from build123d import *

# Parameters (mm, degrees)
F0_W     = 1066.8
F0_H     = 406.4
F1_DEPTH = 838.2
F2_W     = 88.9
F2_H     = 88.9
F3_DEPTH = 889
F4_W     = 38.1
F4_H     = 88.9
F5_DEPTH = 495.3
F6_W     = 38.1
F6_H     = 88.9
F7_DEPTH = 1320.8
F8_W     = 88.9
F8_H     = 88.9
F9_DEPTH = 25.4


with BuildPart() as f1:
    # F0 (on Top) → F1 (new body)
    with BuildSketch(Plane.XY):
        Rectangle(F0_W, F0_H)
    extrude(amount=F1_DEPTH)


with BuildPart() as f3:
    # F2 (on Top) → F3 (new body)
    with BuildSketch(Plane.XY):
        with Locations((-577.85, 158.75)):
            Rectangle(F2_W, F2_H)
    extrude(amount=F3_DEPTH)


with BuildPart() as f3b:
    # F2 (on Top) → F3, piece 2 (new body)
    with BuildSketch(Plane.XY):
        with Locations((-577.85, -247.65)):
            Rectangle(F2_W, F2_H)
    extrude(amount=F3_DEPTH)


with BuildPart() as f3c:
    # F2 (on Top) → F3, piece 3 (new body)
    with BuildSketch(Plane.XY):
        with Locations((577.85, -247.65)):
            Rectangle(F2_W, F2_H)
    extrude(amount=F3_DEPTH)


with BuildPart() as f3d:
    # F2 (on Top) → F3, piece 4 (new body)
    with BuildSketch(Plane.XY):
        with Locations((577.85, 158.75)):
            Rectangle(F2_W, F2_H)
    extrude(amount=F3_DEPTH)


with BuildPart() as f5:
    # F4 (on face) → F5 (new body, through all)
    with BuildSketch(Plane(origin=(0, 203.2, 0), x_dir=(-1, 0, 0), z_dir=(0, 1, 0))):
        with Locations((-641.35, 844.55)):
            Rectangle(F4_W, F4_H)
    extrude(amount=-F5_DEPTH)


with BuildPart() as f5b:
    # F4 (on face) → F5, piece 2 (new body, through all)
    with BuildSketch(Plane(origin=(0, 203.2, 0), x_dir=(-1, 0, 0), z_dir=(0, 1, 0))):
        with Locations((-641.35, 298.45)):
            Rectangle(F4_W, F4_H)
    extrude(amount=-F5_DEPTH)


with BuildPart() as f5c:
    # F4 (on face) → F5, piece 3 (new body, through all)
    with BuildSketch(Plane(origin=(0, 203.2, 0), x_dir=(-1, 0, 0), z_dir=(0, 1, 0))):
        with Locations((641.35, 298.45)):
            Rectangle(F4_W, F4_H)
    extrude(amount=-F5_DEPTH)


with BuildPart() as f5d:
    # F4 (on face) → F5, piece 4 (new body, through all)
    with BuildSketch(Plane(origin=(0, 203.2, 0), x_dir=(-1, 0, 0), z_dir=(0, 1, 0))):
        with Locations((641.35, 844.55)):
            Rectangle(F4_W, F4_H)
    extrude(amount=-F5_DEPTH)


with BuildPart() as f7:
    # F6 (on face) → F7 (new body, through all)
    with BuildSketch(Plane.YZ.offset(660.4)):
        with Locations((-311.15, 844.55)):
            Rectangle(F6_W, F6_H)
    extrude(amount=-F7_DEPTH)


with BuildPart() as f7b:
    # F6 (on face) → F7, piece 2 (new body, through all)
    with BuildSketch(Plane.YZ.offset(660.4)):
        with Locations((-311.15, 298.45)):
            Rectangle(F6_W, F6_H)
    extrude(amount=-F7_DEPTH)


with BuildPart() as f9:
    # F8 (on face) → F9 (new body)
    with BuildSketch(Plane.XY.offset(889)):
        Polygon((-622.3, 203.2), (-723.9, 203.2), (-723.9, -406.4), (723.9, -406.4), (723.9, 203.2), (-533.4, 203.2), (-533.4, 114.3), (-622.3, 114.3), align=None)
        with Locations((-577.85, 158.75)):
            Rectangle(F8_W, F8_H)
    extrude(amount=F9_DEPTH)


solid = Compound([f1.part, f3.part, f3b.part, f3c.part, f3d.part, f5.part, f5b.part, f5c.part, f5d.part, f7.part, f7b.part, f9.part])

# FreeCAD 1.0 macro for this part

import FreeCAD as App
import Part
import Sketcher
Q = App.Units.Quantity


def add_polygon(sketch, points):
    """Adds a closed chain of lines whose ends are joined by coincident constraints."""
    first, n = sketch.GeometryCount, len(points)
    for a, b in zip(points, points[1:] + points[:1]):
        sketch.addGeometry(Part.LineSegment(App.Vector(*a, 0), App.Vector(*b, 0)), False)
    for i in range(n):
        sketch.addConstraint(Sketcher.Constraint("Coincident", first + i, 2, first + (i + 1) % n, 1))

doc = App.newDocument("Part")
body = doc.addObject("PartDesign::Body", "Body")

# Sketch on XY plane
sketch1 = body.newObject("Sketcher::SketchObject", "Sketch")
sketch1.AttachmentSupport = (doc.getObject("XY_Plane"), [""])
sketch1.MapMode = "FlatFace"
add_polygon(sketch1, [(-533, 203), (-533, -203), (533, -203), (533, 203)])  # lines 0-3
sketch1.addConstraint([
    Sketcher.Constraint("Vertical", 0),
    Sketcher.Constraint("Horizontal", 1),
    Sketcher.Constraint("Vertical", 2),
    Sketcher.Constraint("Horizontal", 3),
    Sketcher.Constraint("Symmetric", 0, 2, 2, 2, -1, 1),
    Sketcher.Constraint("DistanceX", 1, 1, 1, 2, Q("42 in")),
    Sketcher.Constraint("DistanceY", 0, 2, 0, 1, Q("16 in")),
])
pad1 = body.newObject("PartDesign::Pad", "Pad")
pad1.Profile = sketch1
pad1.Length = Q("33 in")
body2 = doc.addObject("PartDesign::Body", "Body001")

# Sketch on XY plane
sketch2 = body2.newObject("Sketcher::SketchObject", "Sketch001")
sketch2.AttachmentSupport = (doc.getObject("XY_Plane001"), [""])
sketch2.MapMode = "FlatFace"
add_polygon(sketch2, [(-622, 203), (-622, 114), (-533, 114), (-533, 203)])  # lines 0-3
sketch2.addConstraint([
    Sketcher.Constraint("Vertical", 0),
    Sketcher.Constraint("Horizontal", 1),
    Sketcher.Constraint("Vertical", 2),
    Sketcher.Constraint("Horizontal", 3),
    Sketcher.Constraint("Equal", 3, 0),
    Sketcher.Constraint("DistanceX", 1, 1, 1, 2, Q("3.5 in")),
    Sketcher.Constraint("DistanceX", 1, 2, -1, 1, Q("21 in")),
    Sketcher.Constraint("DistanceY", -1, 1, 2, 2, Q("8 in")),
])
pad2 = body2.newObject("PartDesign::Pad", "Pad001")
pad2.Profile = sketch2
pad2.Length = Q("35 in")
body3 = doc.addObject("PartDesign::Body", "Body002")

# Sketch on XY plane
sketch3 = body3.newObject("Sketcher::SketchObject", "Sketch002")
sketch3.AttachmentSupport = (doc.getObject("XY_Plane002"), [""])
sketch3.MapMode = "FlatFace"
add_polygon(sketch3, [(-622, -203), (-622, -292), (-533, -292), (-533, -203)])  # lines 0-3
sketch3.addConstraint([
    Sketcher.Constraint("Vertical", 0),
    Sketcher.Constraint("Horizontal", 1),
    Sketcher.Constraint("Vertical", 2),
    Sketcher.Constraint("Horizontal", 3),
    Sketcher.Constraint("Equal", 3, 0),
    Sketcher.Constraint("DistanceX", 1, 1, 1, 2, Q("3.5 in")),
    Sketcher.Constraint("DistanceX", 1, 2, -1, 1, Q("21 in")),
    Sketcher.Constraint("DistanceY", 2, 2, -1, 1, Q("8 in")),
])
pad3 = body3.newObject("PartDesign::Pad", "Pad002")
pad3.Profile = sketch3
pad3.Length = Q("35 in")
body4 = doc.addObject("PartDesign::Body", "Body003")

# Sketch on XY plane
sketch4 = body4.newObject("Sketcher::SketchObject", "Sketch003")
sketch4.AttachmentSupport = (doc.getObject("XY_Plane003"), [""])
sketch4.MapMode = "FlatFace"
add_polygon(sketch4, [(533, -203), (533, -292), (622, -292), (622, -203)])  # lines 0-3
sketch4.addConstraint([
    Sketcher.Constraint("Vertical", 0),
    Sketcher.Constraint("Horizontal", 1),
    Sketcher.Constraint("Vertical", 2),
    Sketcher.Constraint("Horizontal", 3),
    Sketcher.Constraint("Equal", 3, 0),
    Sketcher.Constraint("DistanceX", 1, 1, 1, 2, Q("3.5 in")),
    Sketcher.Constraint("DistanceX", -1, 1, 0, 2, Q("21 in")),
    Sketcher.Constraint("DistanceY", 2, 2, -1, 1, Q("8 in")),
])
pad4 = body4.newObject("PartDesign::Pad", "Pad003")
pad4.Profile = sketch4
pad4.Length = Q("35 in")
body5 = doc.addObject("PartDesign::Body", "Body004")

# Sketch on XY plane
sketch5 = body5.newObject("Sketcher::SketchObject", "Sketch004")
sketch5.AttachmentSupport = (doc.getObject("XY_Plane004"), [""])
sketch5.MapMode = "FlatFace"
add_polygon(sketch5, [(533, 203), (533, 114), (622, 114), (622, 203)])  # lines 0-3
sketch5.addConstraint([
    Sketcher.Constraint("Vertical", 0),
    Sketcher.Constraint("Horizontal", 1),
    Sketcher.Constraint("Vertical", 2),
    Sketcher.Constraint("Horizontal", 3),
    Sketcher.Constraint("Equal", 3, 0),
    Sketcher.Constraint("DistanceX", 1, 1, 1, 2, Q("3.5 in")),
    Sketcher.Constraint("DistanceX", -1, 1, 0, 2, Q("21 in")),
    Sketcher.Constraint("DistanceY", -1, 1, 2, 2, Q("8 in")),
])
pad5 = body5.newObject("PartDesign::Pad", "Pad004")
pad5.Profile = sketch5
pad5.Length = Q("35 in")
body6 = doc.addObject("PartDesign::Body", "Body005")

# Sketch on XZ plane
sketch6 = body6.newObject("Sketcher::SketchObject", "Sketch005")
sketch6.AttachmentSupport = (doc.getObject("XZ_Plane005"), [""])
sketch6.MapMode = "FlatFace"
sketch6.AttachmentOffset = App.Placement(App.Vector(0, 0, -8 * 25.4), App.Rotation())
add_polygon(sketch6, [(660, 889), (660, 800), (622, 800), (622, 889)])  # lines 0-3
sketch6.addConstraint([
    Sketcher.Constraint("Vertical", 0),
    Sketcher.Constraint("Horizontal", 1),
    Sketcher.Constraint("Vertical", 2),
    Sketcher.Constraint("Horizontal", 3),
    Sketcher.Constraint("DistanceX", 1, 2, 1, 1, Q("1.5 in")),
    Sketcher.Constraint("DistanceY", 0, 2, 0, 1, Q("3.5 in")),
    Sketcher.Constraint("DistanceX", -1, 1, 0, 2, Q("26 in")),
    Sketcher.Constraint("DistanceY", -1, 1, 2, 2, Q("35 in")),
])
pad6 = body6.newObject("PartDesign::Pad", "Pad005")
pad6.Profile = sketch6
pad6.Length = Q("19.5 in")
body7 = doc.addObject("PartDesign::Body", "Body006")

# Sketch on XZ plane
sketch7 = body7.newObject("Sketcher::SketchObject", "Sketch006")
sketch7.AttachmentSupport = (doc.getObject("XZ_Plane006"), [""])
sketch7.MapMode = "FlatFace"
sketch7.AttachmentOffset = App.Placement(App.Vector(0, 0, -8 * 25.4), App.Rotation())
add_polygon(sketch7, [(660, 343), (660, 254), (622, 254), (622, 343)])  # lines 0-3
sketch7.addConstraint([
    Sketcher.Constraint("Vertical", 0),
    Sketcher.Constraint("Horizontal", 1),
    Sketcher.Constraint("Vertical", 2),
    Sketcher.Constraint("Horizontal", 3),
    Sketcher.Constraint("DistanceX", 1, 2, 1, 1, Q("1.5 in")),
    Sketcher.Constraint("DistanceY", 0, 2, 0, 1, Q("3.5 in")),
    Sketcher.Constraint("DistanceX", -1, 1, 0, 2, Q("26 in")),
    Sketcher.Constraint("DistanceY", -1, 1, 0, 2, Q("10 in")),
])
pad7 = body7.newObject("PartDesign::Pad", "Pad006")
pad7.Profile = sketch7
pad7.Length = Q("19.5 in")
body8 = doc.addObject("PartDesign::Body", "Body007")

# Sketch on XZ plane
sketch8 = body8.newObject("Sketcher::SketchObject", "Sketch007")
sketch8.AttachmentSupport = (doc.getObject("XZ_Plane007"), [""])
sketch8.MapMode = "FlatFace"
sketch8.AttachmentOffset = App.Placement(App.Vector(0, 0, -8 * 25.4), App.Rotation())
add_polygon(sketch8, [(-622, 343), (-622, 254), (-660, 254), (-660, 343)])  # lines 0-3
sketch8.addConstraint([
    Sketcher.Constraint("Vertical", 0),
    Sketcher.Constraint("Horizontal", 1),
    Sketcher.Constraint("Vertical", 2),
    Sketcher.Constraint("Horizontal", 3),
    Sketcher.Constraint("DistanceX", 1, 2, 1, 1, Q("1.5 in")),
    Sketcher.Constraint("DistanceY", 0, 2, 0, 1, Q("3.5 in")),
    Sketcher.Constraint("DistanceY", -1, 1, 0, 2, Q("10 in")),
    Sketcher.Constraint("DistanceX", 1, 2, -1, 1, Q("26 in")),
])
pad8 = body8.newObject("PartDesign::Pad", "Pad007")
pad8.Profile = sketch8
pad8.Length = Q("19.5 in")
body9 = doc.addObject("PartDesign::Body", "Body008")

# Sketch on XZ plane
sketch9 = body9.newObject("Sketcher::SketchObject", "Sketch008")
sketch9.AttachmentSupport = (doc.getObject("XZ_Plane008"), [""])
sketch9.MapMode = "FlatFace"
sketch9.AttachmentOffset = App.Placement(App.Vector(0, 0, -8 * 25.4), App.Rotation())
add_polygon(sketch9, [(-622, 889), (-622, 800), (-660, 800), (-660, 889)])  # lines 0-3
sketch9.addConstraint([
    Sketcher.Constraint("Vertical", 0),
    Sketcher.Constraint("Horizontal", 1),
    Sketcher.Constraint("Vertical", 2),
    Sketcher.Constraint("Horizontal", 3),
    Sketcher.Constraint("DistanceX", 1, 2, 1, 1, Q("1.5 in")),
    Sketcher.Constraint("DistanceY", 0, 2, 0, 1, Q("3.5 in")),
    Sketcher.Constraint("DistanceX", 1, 2, -1, 1, Q("26 in")),
    Sketcher.Constraint("DistanceY", -1, 1, 2, 2, Q("35 in")),
])
pad9 = body9.newObject("PartDesign::Pad", "Pad008")
pad9.Profile = sketch9
pad9.Length = Q("19.5 in")
body10 = doc.addObject("PartDesign::Body", "Body009")

# Sketch on YZ plane
sketch10 = body10.newObject("Sketcher::SketchObject", "Sketch009")
sketch10.AttachmentSupport = (doc.getObject("YZ_Plane009"), [""])
sketch10.MapMode = "FlatFace"
sketch10.AttachmentOffset = App.Placement(App.Vector(0, 0, 26 * 25.4), App.Rotation())
add_polygon(sketch10, [(-330, 889), (-330, 800), (-292, 800), (-292, 889)])  # lines 0-3
sketch10.addConstraint([
    Sketcher.Constraint("Vertical", 0),
    Sketcher.Constraint("Horizontal", 1),
    Sketcher.Constraint("Vertical", 2),
    Sketcher.Constraint("Horizontal", 3),
    Sketcher.Constraint("DistanceX", 1, 1, 1, 2, Q("1.5 in")),
    Sketcher.Constraint("DistanceY", 0, 2, 0, 1, Q("3.5 in")),
    Sketcher.Constraint("DistanceX", 0, 2, -1, 1, Q("13 in")),
    Sketcher.Constraint("DistanceY", -1, 1, 2, 2, Q("35 in")),
])
pad10 = body10.newObject("PartDesign::Pad", "Pad009")
pad10.Profile = sketch10
pad10.Length = Q("52 in")
pad10.Reversed = True
body11 = doc.addObject("PartDesign::Body", "Body010")

# Sketch on YZ plane
sketch11 = body11.newObject("Sketcher::SketchObject", "Sketch010")
sketch11.AttachmentSupport = (doc.getObject("YZ_Plane010"), [""])
sketch11.MapMode = "FlatFace"
sketch11.AttachmentOffset = App.Placement(App.Vector(0, 0, 26 * 25.4), App.Rotation())
add_polygon(sketch11, [(-330, 343), (-330, 254), (-292, 254), (-292, 343)])  # lines 0-3
sketch11.addConstraint([
    Sketcher.Constraint("Vertical", 0),
    Sketcher.Constraint("Horizontal", 1),
    Sketcher.Constraint("Vertical", 2),
    Sketcher.Constraint("Horizontal", 3),
    Sketcher.Constraint("DistanceX", 1, 1, 1, 2, Q("1.5 in")),
    Sketcher.Constraint("DistanceY", 0, 2, 0, 1, Q("3.5 in")),
    Sketcher.Constraint("DistanceX", 0, 2, -1, 1, Q("13 in")),
    Sketcher.Constraint("DistanceY", -1, 1, 0, 2, Q("10 in")),
])
pad11 = body11.newObject("PartDesign::Pad", "Pad010")
pad11.Profile = sketch11
pad11.Length = Q("52 in")
pad11.Reversed = True
body12 = doc.addObject("PartDesign::Body", "Body011")

# Sketch on XY plane
sketch12 = body12.newObject("Sketcher::SketchObject", "Sketch011")
sketch12.AttachmentSupport = (doc.getObject("XY_Plane011"), [""])
sketch12.MapMode = "FlatFace"
sketch12.AttachmentOffset = App.Placement(App.Vector(0, 0, 35 * 25.4), App.Rotation())
add_polygon(sketch12, [(-724, 203), (-724, -406), (724, -406), (724, 203)])  # lines 0-3
sketch12.addConstraint([
    Sketcher.Constraint("Vertical", 0),
    Sketcher.Constraint("Horizontal", 1),
    Sketcher.Constraint("Vertical", 2),
    Sketcher.Constraint("Horizontal", 3),
    Sketcher.Constraint("DistanceX", 1, 1, 1, 2, Q("57 in")),
    Sketcher.Constraint("DistanceY", 0, 2, 0, 1, Q("24 in")),
    Sketcher.Constraint("DistanceY", 0, 2, -1, 1, Q("16 in")),
    Sketcher.Constraint("DistanceX", 0, 2, -1, 1, Q("28.5 in")),
])
pad12 = body12.newObject("PartDesign::Pad", "Pad011")
pad12.Profile = sketch12
pad12.Length = Q("1 in")

doc.recompute()
